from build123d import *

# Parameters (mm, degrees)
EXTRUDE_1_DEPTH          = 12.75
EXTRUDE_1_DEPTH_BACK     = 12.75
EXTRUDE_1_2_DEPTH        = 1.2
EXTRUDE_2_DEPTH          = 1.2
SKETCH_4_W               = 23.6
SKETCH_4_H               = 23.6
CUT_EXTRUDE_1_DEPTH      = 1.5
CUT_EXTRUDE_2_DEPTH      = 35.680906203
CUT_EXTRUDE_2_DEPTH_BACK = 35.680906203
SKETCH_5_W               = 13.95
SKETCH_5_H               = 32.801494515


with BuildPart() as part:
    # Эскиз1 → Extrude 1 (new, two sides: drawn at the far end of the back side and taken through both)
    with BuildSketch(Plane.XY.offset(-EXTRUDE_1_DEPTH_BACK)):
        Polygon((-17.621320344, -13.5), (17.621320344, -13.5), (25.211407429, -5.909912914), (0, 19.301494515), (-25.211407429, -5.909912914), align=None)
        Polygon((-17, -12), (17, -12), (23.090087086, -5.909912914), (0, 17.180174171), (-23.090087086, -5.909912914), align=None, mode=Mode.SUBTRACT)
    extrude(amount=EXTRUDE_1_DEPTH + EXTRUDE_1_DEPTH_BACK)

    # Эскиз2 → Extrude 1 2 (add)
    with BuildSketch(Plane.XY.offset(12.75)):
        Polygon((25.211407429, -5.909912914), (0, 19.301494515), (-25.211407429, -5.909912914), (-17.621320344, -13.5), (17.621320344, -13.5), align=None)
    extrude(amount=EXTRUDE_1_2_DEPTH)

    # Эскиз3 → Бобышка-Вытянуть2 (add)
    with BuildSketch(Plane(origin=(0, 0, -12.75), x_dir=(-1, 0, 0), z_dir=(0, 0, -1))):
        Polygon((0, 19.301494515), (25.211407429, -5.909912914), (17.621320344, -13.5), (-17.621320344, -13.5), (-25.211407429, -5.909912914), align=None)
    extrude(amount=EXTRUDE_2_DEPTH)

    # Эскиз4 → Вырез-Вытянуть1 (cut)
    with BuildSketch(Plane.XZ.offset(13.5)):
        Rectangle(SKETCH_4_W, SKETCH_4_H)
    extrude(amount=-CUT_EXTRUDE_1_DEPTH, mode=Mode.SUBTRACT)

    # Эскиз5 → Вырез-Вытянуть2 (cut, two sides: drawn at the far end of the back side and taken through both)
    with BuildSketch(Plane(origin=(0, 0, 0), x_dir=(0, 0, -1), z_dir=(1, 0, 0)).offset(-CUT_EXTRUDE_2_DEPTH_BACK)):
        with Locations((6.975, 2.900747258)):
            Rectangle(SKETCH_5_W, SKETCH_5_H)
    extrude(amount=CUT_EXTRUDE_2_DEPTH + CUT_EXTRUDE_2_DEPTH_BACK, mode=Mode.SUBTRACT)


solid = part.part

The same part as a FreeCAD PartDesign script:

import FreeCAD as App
import Part
import Sketcher


def add_polygon(sketch, points):
    """Adds a closed chain of lines whose ends are joined by coincident constraints."""
    first, n = sketch.GeometryCount, len(points)
    for a, b in zip(points, points[1:] + points[:1]):
        sketch.addGeometry(Part.LineSegment(App.Vector(*a, 0), App.Vector(*b, 0)), False)
    for i in range(n):
        sketch.addConstraint(Sketcher.Constraint("Coincident", first + i, 2, first + (i + 1) % n, 1))

doc = App.newDocument("Part")
params = doc.addObject("Spreadsheet::Sheet", "Params")
for row, (alias, value) in enumerate([
    ("sketch1_width", "34 mm"),
    ("pad1_length", "12.75 mm"),
    ("pad1_length2", "12.75 mm"),
    ("pad2_length", "1.2 mm"),
    ("pad3_length", "1.2 mm"),
    ("sketch4_width", "23.6 mm"),
    ("pocket1_length", "1.5 mm"),
    ("sketch5_height", "13.95 mm"),
], start=1):
    params.set(f"A{row}", alias)
    params.set(f"B{row}", "=" + value)
    params.setAlias(f"B{row}", alias)

body = doc.addObject("PartDesign::Body", "Body")

# Sketch on XY plane
sketch1 = body.newObject("Sketcher::SketchObject", "Sketch")
sketch1.AttachmentSupport = (doc.getObject("XY_Plane"), [""])
sketch1.MapMode = "FlatFace"
add_polygon(sketch1, [(-18, -14), (18, -14), (25, -6), (0, 19), (-25, -6)])  # lines 0-4
add_polygon(sketch1, [(17, -12), (-17, -12), (-23, -6), (0, 17), (23, -6)])  # lines 5-9
sketch1.addConstraint([
    Sketcher.Constraint("Horizontal", 0),
    Sketcher.Constraint("Horizontal", 5),
    Sketcher.Constraint("Symmetric", 1, 2, 3, 2, -2),
    Sketcher.Constraint("Symmetric", 6, 2, 8, 2, -2),
    Sketcher.Constraint("PointOnObject", 2, 2, -2),
    Sketcher.Constraint("PointOnObject", 7, 2, -2),
    Sketcher.Constraint("Perpendicular", 1, 2),
    Sketcher.Constraint("Perpendicular", 2, 3),
    Sketcher.Constraint("Perpendicular", 3, 4),
    Sketcher.Constraint("Parallel", 4, 6),
    Sketcher.Constraint("Perpendicular", 6, 7),
    Sketcher.Constraint("Perpendicular", 8, 9),
    Sketcher.Constraint("Horizontal", 3, 2, 6, 2),
    Sketcher.Constraint("DistanceX", 5, 2, 5, 1, 34.0),
    Sketcher.Constraint("DistanceY", 5, 2, -1, 1, 12.0),
    Sketcher.Constraint("DistanceY", 0, 2, -1, 1, 13.5),
    Sketcher.Constraint("DistanceX", 0, 1, 0, 2, 35.242641),
    Sketcher.Constraint("Distance", 1, 10.734004),
])
sketch1.setExpression("Constraints[23]", "Params.sketch1_width")
pad1 = body.newObject("PartDesign::Pad", "Pad")
pad1.Profile = sketch1
pad1.Type = "TwoLengths"
pad1.setExpression("Length", "Params.pad1_length")
pad1.setExpression("Length2", "Params.pad1_length2")

# Sketch on XY plane
sketch2 = body.newObject("Sketcher::SketchObject", "Sketch001")
sketch2.AttachmentSupport = (doc.getObject("XY_Plane"), [""])
sketch2.MapMode = "FlatFace"
sketch2.AttachmentOffset = App.Placement(App.Vector(0, 0, 12.75), App.Rotation())
add_polygon(sketch2, [(25, -6), (0, 19), (-25, -6), (-18, -14), (18, -14)])  # lines 0-4
sketch2.addConstraint([
    Sketcher.Constraint("Horizontal", 3),
    Sketcher.Constraint("Symmetric", 1, 2, 4, 2, -2),
    Sketcher.Constraint("PointOnObject", 0, 2, -2),
    Sketcher.Constraint("Perpendicular", 0, 1),
    Sketcher.Constraint("Perpendicular", 1, 2),
    Sketcher.Constraint("Perpendicular", 2, 4),
    Sketcher.Constraint("DistanceY", 2, 2, -1, 1, 13.5),
    Sketcher.Constraint("DistanceX", 3, 1, 3, 2, 35.242641),
    Sketcher.Constraint("Distance", 0, 35.654314),
])
pad2 = body.newObject("PartDesign::Pad", "Pad001")
pad2.Profile = sketch2
pad2.setExpression("Length", "Params.pad2_length")

# Sketch on XY plane
sketch3 = body.newObject("Sketcher::SketchObject", "Sketch002")
sketch3.AttachmentSupport = (doc.getObject("XY_Plane"), [""])
sketch3.MapMode = "FlatFace"
sketch3.AttachmentOffset = App.Placement(App.Vector(0, 0, -12.75), App.Rotation())
add_polygon(sketch3, [(-25, -6), (0, 19), (25, -6), (18, -14), (-18, -14)])  # lines 0-4
sketch3.addConstraint([
    Sketcher.Constraint("Horizontal", 3),
    Sketcher.Constraint("Symmetric", 1, 2, 4, 2, -2),
    Sketcher.Constraint("PointOnObject", 0, 2, -2),
    Sketcher.Constraint("Perpendicular", 0, 1),
    Sketcher.Constraint("Perpendicular", 1, 2),
    Sketcher.Constraint("Perpendicular", 2, 4),
    Sketcher.Constraint("DistanceY", 2, 2, -1, 1, 13.5),
    Sketcher.Constraint("DistanceX", 3, 2, 3, 1, 35.242641),
    Sketcher.Constraint("Distance", 0, 35.654314),
])
pad3 = body.newObject("PartDesign::Pad", "Pad002")
pad3.Profile = sketch3
pad3.setExpression("Length", "Params.pad3_length")
pad3.Reversed = True

# Sketch on XZ plane
sketch4 = body.newObject("Sketcher::SketchObject", "Sketch003")
sketch4.AttachmentSupport = (doc.getObject("XZ_Plane"), [""])
sketch4.MapMode = "FlatFace"
sketch4.AttachmentOffset = App.Placement(App.Vector(0, 0, 13.5), App.Rotation())
add_polygon(sketch4, [(-12, 12), (-12, -12), (12, -12), (12, 12)])  # lines 0-3
sketch4.addConstraint([
    Sketcher.Constraint("Vertical", 0),
    Sketcher.Constraint("Horizontal", 1),
    Sketcher.Constraint("Vertical", 2),
    Sketcher.Constraint("Horizontal", 3),
    Sketcher.Constraint("Symmetric", 0, 2, 2, 2, -1, 1),
    Sketcher.Constraint("Equal", 3, 0),
    Sketcher.Constraint("DistanceX", 1, 1, 1, 2, 23.6),
])
sketch4.setExpression("Constraints[10]", "Params.sketch4_width")
pocket1 = body.newObject("PartDesign::Pocket", "Pocket")
pocket1.Profile = sketch4
pocket1.setExpression("Length", "Params.pocket1_length")

# Sketch on YZ plane
sketch5 = body.newObject("Sketcher::SketchObject", "Sketch004")
sketch5.AttachmentSupport = (doc.getObject("YZ_Plane"), [""])
sketch5.MapMode = "FlatFace"
add_polygon(sketch5, [(19, 0), (-14, 0), (-14, -14), (19, -14)])  # lines 0-3
sketch5.addConstraint([
    Sketcher.Constraint("Horizontal", 0),
    Sketcher.Constraint("Vertical", 1),
    Sketcher.Constraint("Horizontal", 2),
    Sketcher.Constraint("Vertical", 3),
    Sketcher.Constraint("PointOnObject", 0, 2, -1),
    Sketcher.Constraint("DistanceY", 1, 2, 1, 1, 13.95),
    Sketcher.Constraint("DistanceX", 0, 2, -1, 1, 13.5),
    Sketcher.Constraint("DistanceX", 0, 2, 0, 1, 32.801495),
])
sketch5.setExpression("Constraints[9]", "Params.sketch5_height")
pocket2 = body.newObject("PartDesign::Pocket", "Pocket001")
pocket2.Profile = sketch5
pocket2.Type = "ThroughAll"
pocket2.Midplane = True

doc.recompute()
